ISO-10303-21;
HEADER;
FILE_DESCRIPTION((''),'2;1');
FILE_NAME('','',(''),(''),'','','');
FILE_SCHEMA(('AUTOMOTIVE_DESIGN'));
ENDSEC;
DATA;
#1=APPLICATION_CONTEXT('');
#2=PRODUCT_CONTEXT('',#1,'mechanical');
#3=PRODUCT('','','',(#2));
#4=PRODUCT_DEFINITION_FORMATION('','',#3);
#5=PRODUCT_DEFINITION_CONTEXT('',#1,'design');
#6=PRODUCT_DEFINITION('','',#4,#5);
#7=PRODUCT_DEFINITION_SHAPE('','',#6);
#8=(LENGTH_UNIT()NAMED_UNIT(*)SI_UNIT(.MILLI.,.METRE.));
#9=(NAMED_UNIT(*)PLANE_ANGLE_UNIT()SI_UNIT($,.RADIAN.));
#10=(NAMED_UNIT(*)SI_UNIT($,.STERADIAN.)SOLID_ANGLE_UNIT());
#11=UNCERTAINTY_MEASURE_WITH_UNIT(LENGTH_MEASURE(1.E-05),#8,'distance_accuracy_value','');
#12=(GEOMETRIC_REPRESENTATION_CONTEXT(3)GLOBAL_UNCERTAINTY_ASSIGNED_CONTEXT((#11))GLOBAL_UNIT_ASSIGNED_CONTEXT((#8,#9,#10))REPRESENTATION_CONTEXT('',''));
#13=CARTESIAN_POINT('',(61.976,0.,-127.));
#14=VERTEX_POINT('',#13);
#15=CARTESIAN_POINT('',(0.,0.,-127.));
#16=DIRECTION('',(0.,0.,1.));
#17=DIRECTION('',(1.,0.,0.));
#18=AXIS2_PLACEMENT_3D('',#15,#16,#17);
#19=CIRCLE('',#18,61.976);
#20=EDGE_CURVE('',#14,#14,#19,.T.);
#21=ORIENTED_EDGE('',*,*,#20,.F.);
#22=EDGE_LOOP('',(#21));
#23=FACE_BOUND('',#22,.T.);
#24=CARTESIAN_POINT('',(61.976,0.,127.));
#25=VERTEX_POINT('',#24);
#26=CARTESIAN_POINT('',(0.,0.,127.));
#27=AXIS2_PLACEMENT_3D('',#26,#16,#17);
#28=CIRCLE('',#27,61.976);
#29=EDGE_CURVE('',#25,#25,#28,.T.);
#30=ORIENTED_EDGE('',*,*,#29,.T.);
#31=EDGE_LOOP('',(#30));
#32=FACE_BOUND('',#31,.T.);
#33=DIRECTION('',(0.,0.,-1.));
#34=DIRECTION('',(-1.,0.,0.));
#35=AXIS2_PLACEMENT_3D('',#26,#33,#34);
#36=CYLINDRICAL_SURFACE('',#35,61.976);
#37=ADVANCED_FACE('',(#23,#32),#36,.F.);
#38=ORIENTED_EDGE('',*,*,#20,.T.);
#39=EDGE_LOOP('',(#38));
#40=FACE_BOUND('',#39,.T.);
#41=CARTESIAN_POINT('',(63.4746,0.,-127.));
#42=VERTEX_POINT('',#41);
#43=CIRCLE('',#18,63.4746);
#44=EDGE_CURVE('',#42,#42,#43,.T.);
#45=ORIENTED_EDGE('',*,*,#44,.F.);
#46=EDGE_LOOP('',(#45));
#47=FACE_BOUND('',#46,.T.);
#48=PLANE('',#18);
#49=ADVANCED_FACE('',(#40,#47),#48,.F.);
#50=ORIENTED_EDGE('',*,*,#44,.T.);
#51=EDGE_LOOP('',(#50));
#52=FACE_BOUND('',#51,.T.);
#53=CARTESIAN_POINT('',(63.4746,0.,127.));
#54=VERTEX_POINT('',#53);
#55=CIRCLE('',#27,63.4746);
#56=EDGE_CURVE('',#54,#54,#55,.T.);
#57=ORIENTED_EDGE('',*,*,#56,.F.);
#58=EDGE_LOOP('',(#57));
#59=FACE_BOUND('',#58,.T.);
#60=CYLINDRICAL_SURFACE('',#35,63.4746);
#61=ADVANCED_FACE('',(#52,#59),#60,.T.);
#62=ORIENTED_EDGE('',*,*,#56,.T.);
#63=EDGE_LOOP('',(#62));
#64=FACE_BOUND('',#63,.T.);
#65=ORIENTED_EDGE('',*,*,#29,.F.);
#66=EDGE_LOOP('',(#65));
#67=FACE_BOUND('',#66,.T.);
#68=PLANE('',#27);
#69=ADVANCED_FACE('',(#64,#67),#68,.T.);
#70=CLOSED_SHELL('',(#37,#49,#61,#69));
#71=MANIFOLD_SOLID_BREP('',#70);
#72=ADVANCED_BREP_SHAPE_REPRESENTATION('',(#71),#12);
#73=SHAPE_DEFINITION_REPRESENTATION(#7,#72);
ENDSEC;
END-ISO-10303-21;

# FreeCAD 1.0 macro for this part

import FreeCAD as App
import Part
import Sketcher
Q = App.Units.Quantity

doc = App.newDocument("Part")
body = doc.addObject("PartDesign::Body", "Body")

# Sketch on XY plane
sketch1 = body.newObject("Sketcher::SketchObject", "Sketch")
sketch1.AttachmentSupport = (doc.getObject("XY_Plane"), [""])
sketch1.MapMode = "FlatFace"
sketch1.addGeometry([
    Part.Circle(App.Vector(0, 0, 0), App.Vector(0, 0, 1), 63),
    Part.Circle(App.Vector(0, 0, 0), App.Vector(0, 0, 1), 62),
], False)
sketch1.addConstraint([
    Sketcher.Constraint("Coincident", 0, 3, -1, 1),
    Sketcher.Constraint("Coincident", 1, 3, -1, 1),
    Sketcher.Constraint("Diameter", 1, Q("4.88 in")),
    Sketcher.Constraint("Diameter", 0, Q("4.998 in")),
])
pad1 = body.newObject("PartDesign::Pad", "Pad")
pad1.Profile = sketch1
pad1.Length = Q("10 in")
pad1.Midplane = True

doc.recompute()
